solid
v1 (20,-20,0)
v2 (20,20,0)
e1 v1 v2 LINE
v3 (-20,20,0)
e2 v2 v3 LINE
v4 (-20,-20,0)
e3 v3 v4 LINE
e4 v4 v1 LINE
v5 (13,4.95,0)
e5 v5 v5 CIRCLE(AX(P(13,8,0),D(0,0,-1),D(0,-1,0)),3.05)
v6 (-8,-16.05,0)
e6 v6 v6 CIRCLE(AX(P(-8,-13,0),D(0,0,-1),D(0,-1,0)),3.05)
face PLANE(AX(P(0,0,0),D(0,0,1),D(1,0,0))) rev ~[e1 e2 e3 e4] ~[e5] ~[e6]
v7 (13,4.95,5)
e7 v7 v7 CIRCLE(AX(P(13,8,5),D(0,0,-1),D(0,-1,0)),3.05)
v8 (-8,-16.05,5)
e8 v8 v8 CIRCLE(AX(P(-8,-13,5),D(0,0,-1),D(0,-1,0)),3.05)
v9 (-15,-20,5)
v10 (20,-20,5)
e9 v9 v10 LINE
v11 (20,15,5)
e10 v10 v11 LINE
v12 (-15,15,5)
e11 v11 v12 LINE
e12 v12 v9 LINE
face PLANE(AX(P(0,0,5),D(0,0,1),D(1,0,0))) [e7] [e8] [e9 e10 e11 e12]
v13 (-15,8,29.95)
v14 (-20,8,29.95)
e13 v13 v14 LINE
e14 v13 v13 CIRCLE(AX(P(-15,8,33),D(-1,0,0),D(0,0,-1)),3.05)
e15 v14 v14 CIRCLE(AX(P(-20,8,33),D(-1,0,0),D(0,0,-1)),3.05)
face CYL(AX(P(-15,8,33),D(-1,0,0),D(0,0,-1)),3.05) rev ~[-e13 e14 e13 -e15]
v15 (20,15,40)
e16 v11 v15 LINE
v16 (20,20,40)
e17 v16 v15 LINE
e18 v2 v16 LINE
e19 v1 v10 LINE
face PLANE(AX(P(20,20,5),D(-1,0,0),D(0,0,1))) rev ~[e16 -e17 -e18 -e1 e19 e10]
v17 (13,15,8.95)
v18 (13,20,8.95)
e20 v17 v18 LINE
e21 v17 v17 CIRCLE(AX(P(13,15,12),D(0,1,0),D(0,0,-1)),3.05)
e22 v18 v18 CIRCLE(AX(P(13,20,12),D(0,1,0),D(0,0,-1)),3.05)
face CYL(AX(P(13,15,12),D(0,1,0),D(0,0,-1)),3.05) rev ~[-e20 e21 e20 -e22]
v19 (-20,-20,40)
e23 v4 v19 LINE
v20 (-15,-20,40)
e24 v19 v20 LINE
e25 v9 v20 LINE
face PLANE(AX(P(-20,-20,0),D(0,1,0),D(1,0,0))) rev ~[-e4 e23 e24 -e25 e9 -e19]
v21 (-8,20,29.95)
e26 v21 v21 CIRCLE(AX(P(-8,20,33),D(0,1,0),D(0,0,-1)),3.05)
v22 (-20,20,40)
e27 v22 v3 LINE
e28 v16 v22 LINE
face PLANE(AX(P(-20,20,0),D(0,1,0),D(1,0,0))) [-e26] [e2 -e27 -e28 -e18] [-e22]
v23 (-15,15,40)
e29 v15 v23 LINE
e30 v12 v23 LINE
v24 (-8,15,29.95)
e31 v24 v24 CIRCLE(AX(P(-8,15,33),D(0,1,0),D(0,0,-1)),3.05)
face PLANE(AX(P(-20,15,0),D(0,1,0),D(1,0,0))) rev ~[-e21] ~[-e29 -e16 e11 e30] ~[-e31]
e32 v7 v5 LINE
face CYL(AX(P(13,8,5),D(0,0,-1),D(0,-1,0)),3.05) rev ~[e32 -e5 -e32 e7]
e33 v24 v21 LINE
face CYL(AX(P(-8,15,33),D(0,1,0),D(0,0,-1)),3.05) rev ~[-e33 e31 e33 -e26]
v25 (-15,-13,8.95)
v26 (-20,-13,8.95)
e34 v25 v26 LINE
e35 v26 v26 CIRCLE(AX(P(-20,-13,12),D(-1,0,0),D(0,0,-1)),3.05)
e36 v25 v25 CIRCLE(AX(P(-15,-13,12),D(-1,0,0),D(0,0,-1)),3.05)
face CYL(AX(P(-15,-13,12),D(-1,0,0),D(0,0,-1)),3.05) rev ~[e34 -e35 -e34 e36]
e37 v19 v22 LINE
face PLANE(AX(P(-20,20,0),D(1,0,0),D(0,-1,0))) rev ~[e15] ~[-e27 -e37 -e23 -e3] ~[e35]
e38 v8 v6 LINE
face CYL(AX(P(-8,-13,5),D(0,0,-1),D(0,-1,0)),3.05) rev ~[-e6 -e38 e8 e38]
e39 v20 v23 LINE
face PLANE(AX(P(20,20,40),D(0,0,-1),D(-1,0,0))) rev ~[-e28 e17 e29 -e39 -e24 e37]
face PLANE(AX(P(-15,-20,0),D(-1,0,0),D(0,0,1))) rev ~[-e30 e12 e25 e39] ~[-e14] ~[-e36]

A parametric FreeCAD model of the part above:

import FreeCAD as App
import Part
import Sketcher
Q = App.Units.Quantity

doc = App.newDocument("Part")
body = doc.addObject("PartDesign::Body", "Body")

# Sketch on XY plane
sketch1 = body.newObject("Sketcher::SketchObject", "Sketch")
sketch1.AttachmentSupport = (doc.getObject("XY_Plane"), [""])
sketch1.MapMode = "FlatFace"
sketch1.addGeometry([
    Part.LineSegment(App.Vector(-20, 20, 0), App.Vector(-20, -20, 0)),
    Part.LineSegment(App.Vector(-20, -20, 0), App.Vector(20, -20, 0)),
    Part.LineSegment(App.Vector(20, -20, 0), App.Vector(20, 20, 0)),
    Part.LineSegment(App.Vector(20, 20, 0), App.Vector(-20, 20, 0)),
], False)
sketch1.addConstraint([
    Sketcher.Constraint("Coincident", 0, 2, 1, 1),
    Sketcher.Constraint("Coincident", 1, 2, 2, 1),
    Sketcher.Constraint("Coincident", 2, 2, 3, 1),
    Sketcher.Constraint("Coincident", 3, 2, 0, 1),
    Sketcher.Constraint("Vertical", 0),
    Sketcher.Constraint("Horizontal", 1),
    Sketcher.Constraint("Vertical", 2),
    Sketcher.Constraint("Horizontal", 3),
    Sketcher.Constraint("Symmetric", 0, 2, 2, 2, -1, 1),
    Sketcher.Constraint("Equal", 3, 0),
    Sketcher.Constraint("DistanceX", 1, 1, 1, 2, Q("40 mm")),
])
pad1 = body.newObject("PartDesign::Pad", "Pad")
pad1.Profile = sketch1
pad1.Length = 5

# Sketch on YZ plane
sketch2 = body.newObject("Sketcher::SketchObject", "Sketch001")
sketch2.AttachmentSupport = (doc.getObject("YZ_Plane"), [""])
sketch2.MapMode = "FlatFace"
sketch2.AttachmentOffset = App.Placement(App.Vector(0, 0, -20), App.Rotation())
sketch2.addGeometry([
    Part.LineSegment(App.Vector(20, 40, 0), App.Vector(20, 5, 0)),
    Part.LineSegment(App.Vector(20, 5, 0), App.Vector(-20, 5, 0)),
    Part.LineSegment(App.Vector(-20, 5, 0), App.Vector(-20, 40, 0)),
    Part.LineSegment(App.Vector(-20, 40, 0), App.Vector(20, 40, 0)),
], False)
sketch2.addConstraint([
    Sketcher.Constraint("Coincident", 0, 2, 1, 1),
    Sketcher.Constraint("Coincident", 1, 2, 2, 1),
    Sketcher.Constraint("Coincident", 2, 2, 3, 1),
    Sketcher.Constraint("Coincident", 3, 2, 0, 1),
    Sketcher.Constraint("Vertical", 0),
    Sketcher.Constraint("Horizontal", 1),
    Sketcher.Constraint("Vertical", 2),
    Sketcher.Constraint("Horizontal", 3),
    Sketcher.Constraint("DistanceX", 1, 2, 1, 1, Q("40 mm")),
    Sketcher.Constraint("DistanceY", -1, 1, 2, 2, Q("40 mm")),
    Sketcher.Constraint("DistanceY", 0, 2, 0, 1, Q("35 mm")),
    Sketcher.Constraint("DistanceX", -1, 1, 0, 2, Q("20 mm")),
])
pad2 = body.newObject("PartDesign::Pad", "Pad001")
pad2.Profile = sketch2
pad2.Length = 5

# Sketch on XZ plane
sketch3 = body.newObject("Sketcher::SketchObject", "Sketch002")
sketch3.AttachmentSupport = (doc.getObject("XZ_Plane"), [""])
sketch3.MapMode = "FlatFace"
sketch3.AttachmentOffset = App.Placement(App.Vector(0, 0, -20), App.Rotation())
sketch3.addGeometry([
    Part.LineSegment(App.Vector(20, 40, 0), App.Vector(20, 5, 0)),
    Part.LineSegment(App.Vector(20, 5, 0), App.Vector(-15, 5, 0)),
    Part.LineSegment(App.Vector(-15, 5, 0), App.Vector(-15, 40, 0)),
    Part.LineSegment(App.Vector(-15, 40, 0), App.Vector(20, 40, 0)),
], False)
sketch3.addConstraint([
    Sketcher.Constraint("Coincident", 0, 2, 1, 1),
    Sketcher.Constraint("Coincident", 1, 2, 2, 1),
    Sketcher.Constraint("Coincident", 2, 2, 3, 1),
    Sketcher.Constraint("Coincident", 3, 2, 0, 1),
    Sketcher.Constraint("Vertical", 0),
    Sketcher.Constraint("Horizontal", 1),
    Sketcher.Constraint("Vertical", 2),
    Sketcher.Constraint("Horizontal", 3),
    Sketcher.Constraint("Equal", 3, 0),
    Sketcher.Constraint("DistanceY", -1, 1, 2, 2, Q("40 mm")),
    Sketcher.Constraint("DistanceX", 1, 2, 1, 1, Q("35 mm")),
    Sketcher.Constraint("DistanceX", -1, 1, 0, 2, Q("20 mm")),
])
pad3 = body.newObject("PartDesign::Pad", "Pad002")
pad3.Profile = sketch3
pad3.Length = 5

# Sketch on YZ plane
sketch4 = body.newObject("Sketcher::SketchObject", "Sketch003")
sketch4.AttachmentSupport = (doc.getObject("YZ_Plane"), [""])
sketch4.MapMode = "FlatFace"
sketch4.AttachmentOffset = App.Placement(App.Vector(0, 0, -15), App.Rotation())
sketch4.addGeometry([
    Part.Circle(App.Vector(8, 33, 0), App.Vector(0, 0, 1), 3),
    Part.Circle(App.Vector(-13, 12, 0), App.Vector(0, 0, 1), 3),
], False)
sketch4.addConstraint([
    Sketcher.Constraint("Equal", 0, 1),
    Sketcher.Constraint("Diameter", 0, Q("6.1 mm")),
    Sketcher.Constraint("DistanceX", -1, 1, 0, 3, Q("8 mm")),
    Sketcher.Constraint("DistanceY", -1, 1, 0, 3, Q("33 mm")),
    Sketcher.Constraint("DistanceX", 1, 3, -1, 1, Q("13 mm")),
    Sketcher.Constraint("DistanceY", -1, 1, 1, 3, Q("12 mm")),
])
doc.recompute()
hole = body.newObject("PartDesign::Hole", "Hole")
hole.Profile = sketch4
hole.ThreadType = "None"
hole.Diameter = 6.1
hole.DepthType = "ThroughAll"

# Sketch on XZ plane
sketch5 = body.newObject("Sketcher::SketchObject", "Sketch004")
sketch5.AttachmentSupport = (doc.getObject("XZ_Plane"), [""])
sketch5.MapMode = "FlatFace"
sketch5.AttachmentOffset = App.Placement(App.Vector(0, 0, -15), App.Rotation())
sketch5.addGeometry([
    Part.Circle(App.Vector(-8, 33, 0), App.Vector(0, 0, 1), 3),
    Part.Circle(App.Vector(13, 12, 0), App.Vector(0, 0, 1), 3),
], False)
sketch5.addConstraint([
    Sketcher.Constraint("Equal", 0, 1),
    Sketcher.Constraint("Diameter", 0, Q("6.1 mm")),
    Sketcher.Constraint("DistanceX", 0, 3, -1, 1, Q("8 mm")),
    Sketcher.Constraint("DistanceY", -1, 1, 0, 3, Q("33 mm")),
    Sketcher.Constraint("DistanceX", -1, 1, 1, 3, Q("13 mm")),
    Sketcher.Constraint("DistanceY", -1, 1, 1, 3, Q("12 mm")),
])
doc.recompute()
hole2 = body.newObject("PartDesign::Hole", "Hole001")
hole2.Profile = sketch5
hole2.ThreadType = "None"
hole2.Diameter = 6.1
hole2.DepthType = "ThroughAll"

# Sketch on XY plane
sketch6 = body.newObject("Sketcher::SketchObject", "Sketch005")
sketch6.AttachmentSupport = (doc.getObject("XY_Plane"), [""])
sketch6.MapMode = "FlatFace"
sketch6.AttachmentOffset = App.Placement(App.Vector(0, 0, 5), App.Rotation())
sketch6.addGeometry([
    Part.Circle(App.Vector(-8, -13, 0), App.Vector(0, 0, 1), 3),
    Part.Circle(App.Vector(13, 8, 0), App.Vector(0, 0, 1), 3),
], False)
sketch6.addConstraint([
    Sketcher.Constraint("Equal", 0, 1),
    Sketcher.Constraint("Diameter", 0, Q("6.1 mm")),
    Sketcher.Constraint("DistanceX", 0, 3, -1, 1, Q("8 mm")),
    Sketcher.Constraint("DistanceY", 0, 3, -1, 1, Q("13 mm")),
    Sketcher.Constraint("DistanceX", -1, 1, 1, 3, Q("13 mm")),
    Sketcher.Constraint("DistanceY", -1, 1, 1, 3, Q("8 mm")),
])
doc.recompute()
hole3 = body.newObject("PartDesign::Hole", "Hole002")
hole3.Profile = sketch6
hole3.ThreadType = "None"
hole3.Diameter = 6.1
hole3.DepthType = "ThroughAll"

doc.recompute()
